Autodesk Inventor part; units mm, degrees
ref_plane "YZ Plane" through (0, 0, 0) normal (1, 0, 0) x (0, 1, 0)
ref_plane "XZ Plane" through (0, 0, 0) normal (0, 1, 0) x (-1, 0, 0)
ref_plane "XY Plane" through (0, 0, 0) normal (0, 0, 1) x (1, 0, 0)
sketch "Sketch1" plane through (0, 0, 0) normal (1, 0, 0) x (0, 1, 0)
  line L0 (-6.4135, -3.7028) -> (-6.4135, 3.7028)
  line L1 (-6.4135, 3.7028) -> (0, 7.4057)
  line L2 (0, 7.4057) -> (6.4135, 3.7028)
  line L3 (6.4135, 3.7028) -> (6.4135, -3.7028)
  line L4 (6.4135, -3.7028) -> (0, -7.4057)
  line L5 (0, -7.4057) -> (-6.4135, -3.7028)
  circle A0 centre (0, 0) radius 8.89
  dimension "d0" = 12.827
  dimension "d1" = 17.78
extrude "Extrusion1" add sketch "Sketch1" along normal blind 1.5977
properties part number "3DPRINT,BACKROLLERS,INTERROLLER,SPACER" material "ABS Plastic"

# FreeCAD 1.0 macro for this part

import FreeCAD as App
import Part
import Sketcher
from FreeCAD import Vector
Q = App.Units.Quantity

doc = App.newDocument("Part")
body = doc.addObject("PartDesign::Body", "Body")

# Sketch on YZ plane
sketch1 = body.newObject("Sketcher::SketchObject", "Sketch")
sketch1.AttachmentSupport = (doc.getObject("YZ_Plane"), [""])
sketch1.MapMode = "FlatFace"
sketch1.addGeometry([
    Part.Circle(Vector(0, 0, 0), Vector(0, 0, 1), 9),  # 0
    Part.LineSegment(Vector(0, -7, 0), Vector(-6, -4, 0)),  # 1
    Part.LineSegment(Vector(-6, -4, 0), Vector(-6, 4, 0)),  # 2
    Part.LineSegment(Vector(-6, 4, 0), Vector(0, 7, 0)),  # 3
    Part.LineSegment(Vector(0, 7, 0), Vector(6, 4, 0)),  # 4
    Part.LineSegment(Vector(6, 4, 0), Vector(6, -4, 0)),  # 5
    Part.LineSegment(Vector(6, -4, 0), Vector(0, -7, 0)),  # 6
], False)
sketch1.addConstraint([
    Sketcher.Constraint("Coincident", 1, 2, 2, 1),
    Sketcher.Constraint("Coincident", 2, 2, 3, 1),
    Sketcher.Constraint("Coincident", 3, 2, 4, 1),
    Sketcher.Constraint("Coincident", 4, 2, 5, 1),
    Sketcher.Constraint("Coincident", 5, 2, 6, 1),
    Sketcher.Constraint("Coincident", 6, 2, 1, 1),
    Sketcher.Constraint("Vertical", 2),
    Sketcher.Constraint("Vertical", 5),
    Sketcher.Constraint("Coincident", 0, 3, -1, 1),
    Sketcher.Constraint("Symmetric", 1, 2, 4, 2, -1, 1),
    Sketcher.Constraint("Symmetric", 3, 2, 6, 2, -1, 1),
    Sketcher.Constraint("PointOnObject", 3, 2, -2),
    Sketcher.Constraint("Parallel", 3, 6),
    Sketcher.Constraint("Horizontal", 2, 2, 4, 2),
    Sketcher.Constraint("Diameter", 0, Q("0.7 in")),
    Sketcher.Constraint("Angle", 1, Q("149.9996 deg")),
    Sketcher.Constraint("DistanceX", 2, 2, 4, 2, Q("0.505 in")),
    Sketcher.Constraint("DistanceY", 2, 1, 2, 2, 7.4056),
])
pad1 = body.newObject("PartDesign::Pad", "Pad")
pad1.Profile = sketch1
pad1.Length = Q("0.0629016 in")

doc.recompute()
